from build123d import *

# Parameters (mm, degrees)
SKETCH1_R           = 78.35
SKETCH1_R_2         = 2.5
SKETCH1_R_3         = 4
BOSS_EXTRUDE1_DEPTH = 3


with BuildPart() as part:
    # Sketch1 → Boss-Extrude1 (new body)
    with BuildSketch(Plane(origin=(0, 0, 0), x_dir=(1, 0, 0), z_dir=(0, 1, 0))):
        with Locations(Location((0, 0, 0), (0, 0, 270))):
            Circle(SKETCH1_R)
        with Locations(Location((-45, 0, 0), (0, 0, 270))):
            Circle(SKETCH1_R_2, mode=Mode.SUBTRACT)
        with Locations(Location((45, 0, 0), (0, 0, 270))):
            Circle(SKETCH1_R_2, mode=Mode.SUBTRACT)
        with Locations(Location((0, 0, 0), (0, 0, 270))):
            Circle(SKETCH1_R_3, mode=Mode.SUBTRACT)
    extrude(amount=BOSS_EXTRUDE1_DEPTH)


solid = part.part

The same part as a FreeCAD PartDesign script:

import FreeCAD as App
import Part
import Sketcher

V = App.Vector

doc = App.newDocument("Part")
body = doc.addObject("PartDesign::Body", "Body")

# Sketch on XZ plane
sketch1 = body.newObject("Sketcher::SketchObject", "Sketch")
sketch1.AttachmentSupport = (doc.getObject("XZ_Plane"), [""])
sketch1.MapMode = "FlatFace"
sketch1.addGeometry(Part.Circle(V(0, 0, 0), V(0, 0, 1), 78.35), False)
sketch1.addGeometry(Part.Circle(V(-45, 0, 0), V(0, 0, 1), 2.5), False)
sketch1.addGeometry(Part.Circle(V(45, 0, 0), V(0, 0, 1), 2.5), False)
sketch1.addGeometry(Part.Circle(V(0, 0, 0), V(0, 0, 1), 4), False)
sketch1.addConstraint(Sketcher.Constraint("Coincident", 0, 3, -1, 1))
sketch1.addConstraint(Sketcher.Constraint("Coincident", 3, 3, -1, 1))
sketch1.addConstraint(Sketcher.Constraint("Equal", 1, 2))
sketch1.addConstraint(Sketcher.Constraint("Symmetric", 1, 3, 2, 3, -1, 1))
sketch1.addConstraint(Sketcher.Constraint("PointOnObject", 1, 3, -1))
sketch1.addConstraint(Sketcher.Constraint("Diameter", 1, 5.0))
sketch1.addConstraint(Sketcher.Constraint("Diameter", 3, 8.0))
sketch1.addConstraint(Sketcher.Constraint("Diameter", 0, 156.7))
sketch1.addConstraint(Sketcher.Constraint("DistanceX", 1, 3, -1, 1, 45.0))
pad1 = body.newObject("PartDesign::Pad", "Pad")
pad1.Profile = sketch1
pad1.Length = 3
pad1.Reversed = True

doc.recompute()
